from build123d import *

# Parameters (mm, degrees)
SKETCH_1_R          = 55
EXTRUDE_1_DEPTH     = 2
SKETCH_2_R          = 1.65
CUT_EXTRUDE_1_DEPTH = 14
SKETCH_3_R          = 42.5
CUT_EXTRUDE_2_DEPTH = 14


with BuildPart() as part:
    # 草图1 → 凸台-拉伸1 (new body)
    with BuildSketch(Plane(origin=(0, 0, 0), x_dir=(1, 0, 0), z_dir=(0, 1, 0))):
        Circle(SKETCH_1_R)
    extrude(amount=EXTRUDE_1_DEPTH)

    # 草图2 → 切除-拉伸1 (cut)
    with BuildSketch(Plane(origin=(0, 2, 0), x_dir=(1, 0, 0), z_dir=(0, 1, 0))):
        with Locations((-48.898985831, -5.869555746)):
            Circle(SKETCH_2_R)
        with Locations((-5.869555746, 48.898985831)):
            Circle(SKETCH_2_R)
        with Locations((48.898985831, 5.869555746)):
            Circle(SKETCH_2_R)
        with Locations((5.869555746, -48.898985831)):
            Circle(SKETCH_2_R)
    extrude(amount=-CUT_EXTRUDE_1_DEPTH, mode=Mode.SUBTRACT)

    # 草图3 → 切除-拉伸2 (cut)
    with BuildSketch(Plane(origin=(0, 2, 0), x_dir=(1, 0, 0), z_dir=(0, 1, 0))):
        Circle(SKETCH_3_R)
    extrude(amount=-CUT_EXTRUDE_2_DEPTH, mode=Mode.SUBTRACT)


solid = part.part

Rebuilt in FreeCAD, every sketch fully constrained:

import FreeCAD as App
import Part
import Sketcher
from FreeCAD import Vector

doc = App.newDocument("Part")
body = doc.addObject("PartDesign::Body", "Body")

# Sketch on XZ plane
sketch1 = body.newObject("Sketcher::SketchObject", "Sketch")
sketch1.AttachmentSupport = (doc.getObject("XZ_Plane"), [""])
sketch1.MapMode = "FlatFace"
sketch1.addGeometry(Part.Circle(Vector(0, 0, 0), Vector(0, 0, 1), 55), False)
sketch1.addConstraint([
    Sketcher.Constraint("Coincident", 0, 3, -1, 1),
    Sketcher.Constraint("Diameter", 0, 110.0),
])
pad1 = body.newObject("PartDesign::Pad", "Pad")
pad1.Profile = sketch1
pad1.Length = 2
pad1.Reversed = True

# Sketch on XZ plane
sketch2 = body.newObject("Sketcher::SketchObject", "Sketch001")
sketch2.AttachmentSupport = (doc.getObject("XZ_Plane"), [""])
sketch2.MapMode = "FlatFace"
sketch2.AttachmentOffset = App.Placement(Vector(0, 0, -2), App.Rotation())
sketch2.addGeometry([
    Part.Circle(Vector(-48.9, 5.9, 0), Vector(0, 0, 1), 1.6),
    Part.Circle(Vector(-5.9, -48.9, 0), Vector(0, 0, 1), 1.6),
    Part.Circle(Vector(48.9, -5.9, 0), Vector(0, 0, 1), 1.6),
    Part.Circle(Vector(5.9, 48.9, 0), Vector(0, 0, 1), 1.6),
], False)
sketch2.addConstraint([
    Sketcher.Constraint("Equal", 0, 1),
    Sketcher.Constraint("Equal", 1, 2),
    Sketcher.Constraint("Equal", 2, 3),
    Sketcher.Constraint("Symmetric", 0, 3, 2, 3, -1, 1),
    Sketcher.Constraint("Symmetric", 1, 3, 3, 3, -1, 1),
    Sketcher.Constraint("Diameter", 0, 3.3),
    Sketcher.Constraint("DistanceX", 0, 3, 1, 3, 43.02943),
    Sketcher.Constraint("DistanceY", 1, 3, 0, 3, 54.768542),
    Sketcher.Constraint("DistanceX", 1, 3, 2, 3, 54.768542),
    Sketcher.Constraint("DistanceY", 1, 3, 2, 3, 43.02943),
])
pocket1 = body.newObject("PartDesign::Pocket", "Pocket")
pocket1.Profile = sketch2
pocket1.Length = 14
pocket1.Reversed = True

# Sketch on XZ plane
sketch3 = body.newObject("Sketcher::SketchObject", "Sketch002")
sketch3.AttachmentSupport = (doc.getObject("XZ_Plane"), [""])
sketch3.MapMode = "FlatFace"
sketch3.AttachmentOffset = App.Placement(Vector(0, 0, -2), App.Rotation())
sketch3.addGeometry(Part.Circle(Vector(0, 0, 0), Vector(0, 0, 1), 42), False)
sketch3.addConstraint([
    Sketcher.Constraint("Coincident", 0, 3, -1, 1),
    Sketcher.Constraint("Diameter", 0, 85.0),
])
pocket2 = body.newObject("PartDesign::Pocket", "Pocket001")
pocket2.Profile = sketch3
pocket2.Length = 14
pocket2.Reversed = True

doc.recompute()
